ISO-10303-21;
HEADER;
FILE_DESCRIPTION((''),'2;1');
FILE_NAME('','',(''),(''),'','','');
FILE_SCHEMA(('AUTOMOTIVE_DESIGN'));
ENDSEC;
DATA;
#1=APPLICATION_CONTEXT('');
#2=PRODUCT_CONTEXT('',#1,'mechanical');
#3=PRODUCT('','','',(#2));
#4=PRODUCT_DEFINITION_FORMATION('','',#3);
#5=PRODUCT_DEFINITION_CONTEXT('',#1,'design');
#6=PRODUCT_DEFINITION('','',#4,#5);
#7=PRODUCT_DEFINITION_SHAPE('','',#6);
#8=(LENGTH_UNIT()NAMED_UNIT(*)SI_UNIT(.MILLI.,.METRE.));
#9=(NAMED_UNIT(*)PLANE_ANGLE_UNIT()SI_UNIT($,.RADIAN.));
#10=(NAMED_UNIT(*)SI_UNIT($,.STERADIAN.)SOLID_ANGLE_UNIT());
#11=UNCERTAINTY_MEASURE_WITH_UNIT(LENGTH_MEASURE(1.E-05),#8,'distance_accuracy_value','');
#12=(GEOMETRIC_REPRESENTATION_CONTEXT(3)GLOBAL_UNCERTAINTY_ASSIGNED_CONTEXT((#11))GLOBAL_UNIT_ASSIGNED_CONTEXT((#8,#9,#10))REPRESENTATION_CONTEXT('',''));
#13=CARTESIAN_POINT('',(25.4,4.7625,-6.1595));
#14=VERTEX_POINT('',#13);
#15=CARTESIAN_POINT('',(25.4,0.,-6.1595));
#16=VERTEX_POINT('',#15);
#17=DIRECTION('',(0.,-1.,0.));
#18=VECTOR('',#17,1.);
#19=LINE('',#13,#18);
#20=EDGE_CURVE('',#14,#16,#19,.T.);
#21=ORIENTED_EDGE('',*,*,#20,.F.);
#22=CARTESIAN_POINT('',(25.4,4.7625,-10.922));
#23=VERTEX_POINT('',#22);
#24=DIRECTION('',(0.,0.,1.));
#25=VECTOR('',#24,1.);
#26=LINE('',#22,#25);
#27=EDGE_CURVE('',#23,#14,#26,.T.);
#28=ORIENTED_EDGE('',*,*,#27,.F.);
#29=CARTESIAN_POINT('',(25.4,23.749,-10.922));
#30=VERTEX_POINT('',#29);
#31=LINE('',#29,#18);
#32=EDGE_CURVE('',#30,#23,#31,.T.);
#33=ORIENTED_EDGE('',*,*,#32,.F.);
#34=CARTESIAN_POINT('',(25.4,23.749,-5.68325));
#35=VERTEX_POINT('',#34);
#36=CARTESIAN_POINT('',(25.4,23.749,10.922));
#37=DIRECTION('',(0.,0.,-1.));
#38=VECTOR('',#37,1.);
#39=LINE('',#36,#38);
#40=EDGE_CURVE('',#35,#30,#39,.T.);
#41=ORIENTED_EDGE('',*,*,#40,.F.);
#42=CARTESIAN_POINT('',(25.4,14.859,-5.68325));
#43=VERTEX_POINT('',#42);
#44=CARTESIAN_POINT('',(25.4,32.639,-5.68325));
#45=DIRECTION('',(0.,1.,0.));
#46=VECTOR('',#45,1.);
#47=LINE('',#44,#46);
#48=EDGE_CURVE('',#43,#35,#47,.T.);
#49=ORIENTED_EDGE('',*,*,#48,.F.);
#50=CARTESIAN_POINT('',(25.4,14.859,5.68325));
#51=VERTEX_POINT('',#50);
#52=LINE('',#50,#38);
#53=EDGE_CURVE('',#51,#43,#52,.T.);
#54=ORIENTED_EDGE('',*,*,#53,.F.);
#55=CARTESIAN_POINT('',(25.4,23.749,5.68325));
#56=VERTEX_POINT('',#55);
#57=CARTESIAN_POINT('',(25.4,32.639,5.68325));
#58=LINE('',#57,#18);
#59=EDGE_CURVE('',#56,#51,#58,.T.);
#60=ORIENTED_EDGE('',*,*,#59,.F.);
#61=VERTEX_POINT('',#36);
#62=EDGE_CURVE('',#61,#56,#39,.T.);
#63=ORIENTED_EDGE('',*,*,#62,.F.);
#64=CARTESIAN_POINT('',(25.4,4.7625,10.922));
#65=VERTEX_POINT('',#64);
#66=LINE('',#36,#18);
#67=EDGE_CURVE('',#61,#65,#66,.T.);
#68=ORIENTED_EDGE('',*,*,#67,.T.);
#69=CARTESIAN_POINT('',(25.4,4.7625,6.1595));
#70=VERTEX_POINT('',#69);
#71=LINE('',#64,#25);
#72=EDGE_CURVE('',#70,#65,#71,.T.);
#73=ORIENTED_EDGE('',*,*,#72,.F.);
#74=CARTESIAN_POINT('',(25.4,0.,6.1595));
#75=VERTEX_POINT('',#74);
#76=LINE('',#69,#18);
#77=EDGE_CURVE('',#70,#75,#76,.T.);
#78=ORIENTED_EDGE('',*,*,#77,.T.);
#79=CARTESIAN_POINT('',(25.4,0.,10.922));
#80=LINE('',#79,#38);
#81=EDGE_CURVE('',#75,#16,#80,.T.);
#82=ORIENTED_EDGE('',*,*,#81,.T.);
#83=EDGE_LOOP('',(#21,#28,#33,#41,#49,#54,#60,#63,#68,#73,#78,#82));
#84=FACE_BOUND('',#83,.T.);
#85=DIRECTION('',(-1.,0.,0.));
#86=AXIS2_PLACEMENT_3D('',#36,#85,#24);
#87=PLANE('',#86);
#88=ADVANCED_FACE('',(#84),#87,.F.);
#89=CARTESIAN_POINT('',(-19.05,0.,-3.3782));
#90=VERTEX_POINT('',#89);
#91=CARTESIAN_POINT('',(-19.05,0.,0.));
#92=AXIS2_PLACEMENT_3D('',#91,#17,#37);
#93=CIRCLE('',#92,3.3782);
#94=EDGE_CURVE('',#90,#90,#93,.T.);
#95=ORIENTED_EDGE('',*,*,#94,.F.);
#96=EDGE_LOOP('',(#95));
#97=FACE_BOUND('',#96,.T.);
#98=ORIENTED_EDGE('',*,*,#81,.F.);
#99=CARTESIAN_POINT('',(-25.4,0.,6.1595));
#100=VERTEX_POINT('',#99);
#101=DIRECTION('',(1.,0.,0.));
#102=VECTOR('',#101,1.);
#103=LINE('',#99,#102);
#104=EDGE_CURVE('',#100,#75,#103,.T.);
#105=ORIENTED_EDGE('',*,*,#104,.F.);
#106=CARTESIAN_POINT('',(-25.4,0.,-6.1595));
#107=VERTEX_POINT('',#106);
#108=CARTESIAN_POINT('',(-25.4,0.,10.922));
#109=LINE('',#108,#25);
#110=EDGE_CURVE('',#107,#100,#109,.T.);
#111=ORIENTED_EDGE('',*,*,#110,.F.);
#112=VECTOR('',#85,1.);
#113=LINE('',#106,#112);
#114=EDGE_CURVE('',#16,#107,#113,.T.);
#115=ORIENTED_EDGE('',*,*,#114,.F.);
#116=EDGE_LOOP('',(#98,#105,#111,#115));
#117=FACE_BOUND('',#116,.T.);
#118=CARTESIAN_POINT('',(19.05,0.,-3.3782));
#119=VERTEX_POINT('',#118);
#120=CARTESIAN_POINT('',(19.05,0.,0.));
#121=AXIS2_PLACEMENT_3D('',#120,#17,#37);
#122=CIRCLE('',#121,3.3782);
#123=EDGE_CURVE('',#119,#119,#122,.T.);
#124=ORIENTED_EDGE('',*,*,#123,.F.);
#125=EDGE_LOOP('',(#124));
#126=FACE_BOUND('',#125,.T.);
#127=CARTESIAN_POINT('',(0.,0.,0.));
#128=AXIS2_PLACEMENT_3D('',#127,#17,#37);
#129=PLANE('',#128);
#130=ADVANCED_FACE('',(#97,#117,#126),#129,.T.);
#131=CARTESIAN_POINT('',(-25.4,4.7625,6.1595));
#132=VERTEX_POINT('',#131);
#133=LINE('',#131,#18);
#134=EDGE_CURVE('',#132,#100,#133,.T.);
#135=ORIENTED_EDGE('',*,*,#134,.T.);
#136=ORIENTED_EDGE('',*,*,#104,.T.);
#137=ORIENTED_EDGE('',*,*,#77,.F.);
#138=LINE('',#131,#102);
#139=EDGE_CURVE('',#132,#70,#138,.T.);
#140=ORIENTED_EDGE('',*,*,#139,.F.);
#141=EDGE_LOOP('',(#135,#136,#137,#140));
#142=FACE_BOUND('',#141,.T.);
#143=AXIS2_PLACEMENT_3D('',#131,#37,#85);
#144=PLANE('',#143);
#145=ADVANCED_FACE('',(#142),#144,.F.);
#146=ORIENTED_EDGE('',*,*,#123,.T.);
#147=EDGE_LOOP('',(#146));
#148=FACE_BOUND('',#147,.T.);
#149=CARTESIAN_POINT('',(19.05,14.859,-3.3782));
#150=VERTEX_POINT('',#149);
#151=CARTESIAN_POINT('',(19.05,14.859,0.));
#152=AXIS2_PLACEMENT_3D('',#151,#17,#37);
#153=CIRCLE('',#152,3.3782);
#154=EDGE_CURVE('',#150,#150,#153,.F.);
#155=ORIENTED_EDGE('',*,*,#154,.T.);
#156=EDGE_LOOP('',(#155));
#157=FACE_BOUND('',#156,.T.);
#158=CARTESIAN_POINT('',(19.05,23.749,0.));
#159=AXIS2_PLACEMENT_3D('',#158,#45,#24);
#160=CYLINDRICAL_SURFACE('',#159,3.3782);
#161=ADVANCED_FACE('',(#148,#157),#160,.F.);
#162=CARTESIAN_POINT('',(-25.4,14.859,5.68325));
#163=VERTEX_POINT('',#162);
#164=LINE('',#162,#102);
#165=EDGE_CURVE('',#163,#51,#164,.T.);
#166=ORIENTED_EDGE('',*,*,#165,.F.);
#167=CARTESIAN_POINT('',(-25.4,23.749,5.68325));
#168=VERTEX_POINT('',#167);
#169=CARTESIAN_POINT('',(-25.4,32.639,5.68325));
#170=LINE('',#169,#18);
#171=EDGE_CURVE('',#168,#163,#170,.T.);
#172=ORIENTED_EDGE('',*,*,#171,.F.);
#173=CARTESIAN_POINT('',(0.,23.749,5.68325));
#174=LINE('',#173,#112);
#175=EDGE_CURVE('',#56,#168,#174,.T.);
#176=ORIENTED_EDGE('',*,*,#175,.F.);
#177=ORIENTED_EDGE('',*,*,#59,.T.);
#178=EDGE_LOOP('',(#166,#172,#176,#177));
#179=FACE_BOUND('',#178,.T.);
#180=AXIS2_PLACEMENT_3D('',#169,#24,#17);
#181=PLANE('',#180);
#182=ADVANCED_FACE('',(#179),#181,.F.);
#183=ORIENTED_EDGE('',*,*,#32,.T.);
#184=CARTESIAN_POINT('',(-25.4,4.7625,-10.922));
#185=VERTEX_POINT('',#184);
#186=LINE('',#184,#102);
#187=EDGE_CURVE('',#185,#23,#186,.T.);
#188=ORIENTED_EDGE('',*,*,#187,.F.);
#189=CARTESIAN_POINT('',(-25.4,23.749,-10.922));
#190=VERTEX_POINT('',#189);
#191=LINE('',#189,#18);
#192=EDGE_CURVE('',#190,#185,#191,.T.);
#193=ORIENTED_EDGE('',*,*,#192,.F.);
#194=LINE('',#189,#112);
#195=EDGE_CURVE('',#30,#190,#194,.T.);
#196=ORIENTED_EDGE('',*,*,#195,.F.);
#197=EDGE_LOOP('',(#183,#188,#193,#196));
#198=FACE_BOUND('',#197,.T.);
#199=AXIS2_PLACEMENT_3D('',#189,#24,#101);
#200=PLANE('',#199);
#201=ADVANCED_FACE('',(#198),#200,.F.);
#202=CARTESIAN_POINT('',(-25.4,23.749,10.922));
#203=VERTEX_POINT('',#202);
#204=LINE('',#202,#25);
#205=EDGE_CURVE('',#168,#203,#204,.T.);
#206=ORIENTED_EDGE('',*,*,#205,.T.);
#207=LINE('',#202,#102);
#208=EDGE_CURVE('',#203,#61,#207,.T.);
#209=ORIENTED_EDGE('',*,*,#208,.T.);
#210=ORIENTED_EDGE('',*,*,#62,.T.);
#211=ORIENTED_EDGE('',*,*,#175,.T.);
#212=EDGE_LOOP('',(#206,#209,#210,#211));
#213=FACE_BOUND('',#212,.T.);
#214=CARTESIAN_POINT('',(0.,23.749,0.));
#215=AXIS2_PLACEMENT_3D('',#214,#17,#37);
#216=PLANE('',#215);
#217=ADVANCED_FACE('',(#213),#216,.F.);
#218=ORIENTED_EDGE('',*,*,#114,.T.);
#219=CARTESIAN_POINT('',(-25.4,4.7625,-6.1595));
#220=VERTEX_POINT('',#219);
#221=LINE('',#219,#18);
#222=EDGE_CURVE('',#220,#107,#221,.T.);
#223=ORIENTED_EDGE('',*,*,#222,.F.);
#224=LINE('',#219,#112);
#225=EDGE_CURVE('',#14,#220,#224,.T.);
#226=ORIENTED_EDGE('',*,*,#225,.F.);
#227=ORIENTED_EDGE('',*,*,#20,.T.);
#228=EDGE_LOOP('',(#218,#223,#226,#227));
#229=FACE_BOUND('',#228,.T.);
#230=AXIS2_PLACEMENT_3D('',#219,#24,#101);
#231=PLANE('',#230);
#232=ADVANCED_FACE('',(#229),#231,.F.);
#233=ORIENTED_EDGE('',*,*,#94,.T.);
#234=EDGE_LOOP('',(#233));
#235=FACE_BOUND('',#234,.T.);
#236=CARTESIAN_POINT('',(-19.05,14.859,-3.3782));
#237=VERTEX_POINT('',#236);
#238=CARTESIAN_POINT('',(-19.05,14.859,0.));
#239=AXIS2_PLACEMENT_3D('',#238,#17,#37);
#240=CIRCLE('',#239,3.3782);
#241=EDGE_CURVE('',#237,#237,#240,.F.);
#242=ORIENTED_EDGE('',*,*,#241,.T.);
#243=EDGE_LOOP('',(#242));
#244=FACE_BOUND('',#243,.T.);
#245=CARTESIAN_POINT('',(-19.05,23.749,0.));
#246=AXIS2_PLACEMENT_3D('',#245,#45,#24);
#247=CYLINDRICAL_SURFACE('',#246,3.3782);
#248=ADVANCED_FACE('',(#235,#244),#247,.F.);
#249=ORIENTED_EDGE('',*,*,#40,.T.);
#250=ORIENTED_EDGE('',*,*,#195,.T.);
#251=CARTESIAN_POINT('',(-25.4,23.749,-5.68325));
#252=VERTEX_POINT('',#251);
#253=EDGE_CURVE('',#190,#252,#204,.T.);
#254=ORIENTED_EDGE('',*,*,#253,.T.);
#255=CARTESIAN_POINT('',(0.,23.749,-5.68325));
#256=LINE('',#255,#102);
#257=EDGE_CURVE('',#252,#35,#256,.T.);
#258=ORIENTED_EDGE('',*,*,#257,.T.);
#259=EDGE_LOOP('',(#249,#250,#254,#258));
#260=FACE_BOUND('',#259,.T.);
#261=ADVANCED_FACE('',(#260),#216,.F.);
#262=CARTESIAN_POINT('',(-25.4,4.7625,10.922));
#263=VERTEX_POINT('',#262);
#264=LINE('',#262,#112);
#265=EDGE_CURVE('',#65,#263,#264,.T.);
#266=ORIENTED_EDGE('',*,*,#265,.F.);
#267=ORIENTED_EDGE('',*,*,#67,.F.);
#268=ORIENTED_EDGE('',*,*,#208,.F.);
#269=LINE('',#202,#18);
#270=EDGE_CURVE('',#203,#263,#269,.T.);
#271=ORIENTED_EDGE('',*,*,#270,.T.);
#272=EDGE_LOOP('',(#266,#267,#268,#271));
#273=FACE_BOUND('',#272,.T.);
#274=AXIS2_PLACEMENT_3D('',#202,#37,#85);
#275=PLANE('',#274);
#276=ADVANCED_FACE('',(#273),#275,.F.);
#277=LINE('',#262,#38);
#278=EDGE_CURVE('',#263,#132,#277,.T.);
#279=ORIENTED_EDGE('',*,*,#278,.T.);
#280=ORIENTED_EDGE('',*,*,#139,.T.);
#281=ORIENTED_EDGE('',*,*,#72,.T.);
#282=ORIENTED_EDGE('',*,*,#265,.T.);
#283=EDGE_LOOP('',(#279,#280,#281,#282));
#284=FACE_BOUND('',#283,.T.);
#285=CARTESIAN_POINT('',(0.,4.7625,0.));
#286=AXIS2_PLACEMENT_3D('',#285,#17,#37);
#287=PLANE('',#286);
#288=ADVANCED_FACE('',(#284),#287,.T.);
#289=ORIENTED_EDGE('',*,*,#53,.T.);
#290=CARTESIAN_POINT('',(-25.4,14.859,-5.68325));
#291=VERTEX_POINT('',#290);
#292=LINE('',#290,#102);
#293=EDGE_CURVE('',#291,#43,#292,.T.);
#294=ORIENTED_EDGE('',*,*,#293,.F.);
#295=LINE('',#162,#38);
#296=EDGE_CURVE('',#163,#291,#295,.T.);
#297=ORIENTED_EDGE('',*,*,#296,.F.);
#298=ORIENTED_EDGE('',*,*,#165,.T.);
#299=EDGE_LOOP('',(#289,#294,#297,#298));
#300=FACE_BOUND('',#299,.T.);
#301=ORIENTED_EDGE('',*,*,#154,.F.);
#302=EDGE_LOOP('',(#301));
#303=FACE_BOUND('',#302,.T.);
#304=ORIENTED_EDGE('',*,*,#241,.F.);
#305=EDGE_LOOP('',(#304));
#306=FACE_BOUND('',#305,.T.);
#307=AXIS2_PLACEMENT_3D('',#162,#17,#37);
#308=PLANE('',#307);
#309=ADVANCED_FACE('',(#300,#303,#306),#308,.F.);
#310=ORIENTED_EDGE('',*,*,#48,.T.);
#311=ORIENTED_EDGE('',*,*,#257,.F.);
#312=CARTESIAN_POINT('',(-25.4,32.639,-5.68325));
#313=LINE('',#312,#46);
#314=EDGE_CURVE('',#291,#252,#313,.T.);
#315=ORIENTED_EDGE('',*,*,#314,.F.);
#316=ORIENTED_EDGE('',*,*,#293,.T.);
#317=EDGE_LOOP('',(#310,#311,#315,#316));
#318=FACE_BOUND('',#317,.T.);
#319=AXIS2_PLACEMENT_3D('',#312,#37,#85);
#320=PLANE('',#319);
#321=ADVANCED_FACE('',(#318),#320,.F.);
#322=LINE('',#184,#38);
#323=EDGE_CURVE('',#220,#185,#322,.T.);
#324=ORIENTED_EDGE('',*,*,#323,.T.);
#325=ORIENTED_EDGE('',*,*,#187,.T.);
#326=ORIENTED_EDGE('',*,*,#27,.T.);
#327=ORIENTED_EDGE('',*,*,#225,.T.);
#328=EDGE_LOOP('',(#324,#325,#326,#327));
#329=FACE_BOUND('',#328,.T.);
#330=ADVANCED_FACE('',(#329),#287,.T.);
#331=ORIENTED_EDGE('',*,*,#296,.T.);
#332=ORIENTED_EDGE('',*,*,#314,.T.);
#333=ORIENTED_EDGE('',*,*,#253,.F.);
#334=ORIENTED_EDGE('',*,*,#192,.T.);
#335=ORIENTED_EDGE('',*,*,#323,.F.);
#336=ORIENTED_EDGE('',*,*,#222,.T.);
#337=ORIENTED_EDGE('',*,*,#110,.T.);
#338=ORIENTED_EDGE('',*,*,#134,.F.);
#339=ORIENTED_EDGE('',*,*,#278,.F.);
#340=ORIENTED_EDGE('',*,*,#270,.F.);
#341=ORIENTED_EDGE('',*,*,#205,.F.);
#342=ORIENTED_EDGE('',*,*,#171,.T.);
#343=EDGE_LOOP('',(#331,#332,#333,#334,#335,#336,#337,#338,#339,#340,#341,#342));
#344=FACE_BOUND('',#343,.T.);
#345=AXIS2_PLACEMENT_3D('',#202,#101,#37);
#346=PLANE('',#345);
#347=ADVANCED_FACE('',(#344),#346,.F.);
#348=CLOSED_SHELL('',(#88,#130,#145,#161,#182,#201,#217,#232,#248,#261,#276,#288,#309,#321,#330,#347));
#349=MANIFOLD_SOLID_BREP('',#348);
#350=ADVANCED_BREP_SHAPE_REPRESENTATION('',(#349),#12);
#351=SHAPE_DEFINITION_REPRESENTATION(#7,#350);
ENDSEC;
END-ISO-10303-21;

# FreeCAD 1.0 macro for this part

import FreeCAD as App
import Part
import Sketcher
Q = App.Units.Quantity


def add_polygon(sketch, points):
    """Adds a closed chain of lines whose ends are joined by coincident constraints."""
    first, n = sketch.GeometryCount, len(points)
    for a, b in zip(points, points[1:] + points[:1]):
        sketch.addGeometry(Part.LineSegment(App.Vector(*a, 0), App.Vector(*b, 0)), False)
    for i in range(n):
        sketch.addConstraint(Sketcher.Constraint("Coincident", first + i, 2, first + (i + 1) % n, 1))

doc = App.newDocument("Part")
body = doc.addObject("PartDesign::Body", "Body")

sketch1 = body.newObject("Sketcher::SketchObject", "Sketch")
sketch1.AttachmentSupport = (doc.getObject("XZ_Plane"), [""])
sketch1.MapMode = "FlatFace"
add_polygon(sketch1, [(-25, -11), (-25, 11), (25, 11), (25, -11)])
sketch1.addConstraint([
    Sketcher.Constraint("Vertical", 0),
    Sketcher.Constraint("Horizontal", 1),
    Sketcher.Constraint("Vertical", 2),
    Sketcher.Constraint("Horizontal", 3),
    Sketcher.Constraint("Symmetric", 0, 2, 2, 2, -1, 1),
    Sketcher.Constraint("DistanceX", 1, 1, 1, 2, Q("2 in")),
    Sketcher.Constraint("DistanceY", 0, 1, 0, 2, Q("0.86 in")),
])
pad1 = body.newObject("PartDesign::Pad", "Pad")
pad1.Profile = sketch1
pad1.Length = Q("0.935 in")
pad1.Reversed = True

sketch2 = body.newObject("Sketcher::SketchObject", "Sketch001")
sketch2.AttachmentSupport = (doc.getObject("XZ_Plane"), [""])
sketch2.MapMode = "FlatFace"
sketch2.AttachmentOffset = App.Placement(App.Vector(0, 0, -0.935 * 25.4), App.Rotation())
sketch2.addGeometry([
    Part.Circle(App.Vector(-19.1, 0, 0), App.Vector(0, 0, 1), 3.4),
    Part.Circle(App.Vector(19.1, 0, 0), App.Vector(0, 0, 1), 3.4),
], False)
sketch2.addConstraint([
    Sketcher.Constraint("Equal", 0, 1),
    Sketcher.Constraint("Symmetric", 0, 3, 1, 3, -1, 1),
    Sketcher.Constraint("PointOnObject", 0, 3, -1),
    Sketcher.Constraint("Diameter", 0, Q("0.266 in")),
    Sketcher.Constraint("DistanceX", 0, 3, 1, 3, Q("1.5 in")),
])
doc.recompute()
hole = body.newObject("PartDesign::Hole", "Hole")
hole.Profile = sketch2
hole.ThreadType = "None"
hole.Diameter = Q("0.266 in")
hole.DepthType = "ThroughAll"
hole.Reversed = True

sketch3 = body.newObject("Sketcher::SketchObject", "Sketch002")
sketch3.AttachmentSupport = (doc.getObject("XZ_Plane"), [""])
sketch3.MapMode = "FlatFace"
add_polygon(sketch3, [(-25.4, 10.9), (-25.4, 6.2), (25.4, 6.2), (25.4, 10.9)])
add_polygon(sketch3, [(-25.4, -6.2), (-25.4, -10.9), (25.4, -10.9), (25.4, -6.2)])
sketch3.addConstraint([
    Sketcher.Constraint("Vertical", 0),
    Sketcher.Constraint("Horizontal", 1),
    Sketcher.Constraint("Vertical", 2),
    Sketcher.Constraint("Horizontal", 3),
    Sketcher.Constraint("Vertical", 4),
    Sketcher.Constraint("Horizontal", 5),
    Sketcher.Constraint("Vertical", 6),
    Sketcher.Constraint("Horizontal", 7),
    Sketcher.Constraint("Symmetric", 2, 2, 4, 2, -1, 1),
    Sketcher.Constraint("Symmetric", 0, 2, 6, 2, -1, 1),
    Sketcher.Constraint("Vertical", 3, 2, 4, 2),
    Sketcher.Constraint("DistanceX", 1, 1, 1, 2, Q("2 in")),
    Sketcher.Constraint("DistanceY", 0, 2, 0, 1, Q("0.1875 in")),
    Sketcher.Constraint("DistanceY", -1, 1, 2, 2, Q("0.43 in")),
])
pocket1 = body.newObject("PartDesign::Pocket", "Pocket")
pocket1.Profile = sketch3
pocket1.Length = Q("0.1875 in")

sketch4 = body.newObject("Sketcher::SketchObject", "Sketch003")
sketch4.AttachmentSupport = (doc.getObject("YZ_Plane"), [""])
sketch4.MapMode = "FlatFace"
sketch4.AttachmentOffset = App.Placement(App.Vector(0, 0, 1 * 25.4), App.Rotation())
add_polygon(sketch4, [(33, 6), (15, 6), (15, -6), (33, -6)])
sketch4.addConstraint([
    Sketcher.Constraint("Horizontal", 0),
    Sketcher.Constraint("Vertical", 1),
    Sketcher.Constraint("Horizontal", 2),
    Sketcher.Constraint("Vertical", 3),
    Sketcher.Constraint("DistanceX", 0, 2, 0, 1, Q("0.7 in")),
    Sketcher.Constraint("DistanceY", 1, 2, 1, 1, Q("0.4475 in")),
    Sketcher.Constraint("DistanceX", -1, 1, 0, 2, Q("0.585 in")),
    Sketcher.Constraint("DistanceY", -1, 1, 0, 2, Q("5.68325 mm")),
])
pocket2 = body.newObject("PartDesign::Pocket", "Pocket001")
pocket2.Profile = sketch4
pocket2.Type = "ThroughAll"

doc.recompute()
